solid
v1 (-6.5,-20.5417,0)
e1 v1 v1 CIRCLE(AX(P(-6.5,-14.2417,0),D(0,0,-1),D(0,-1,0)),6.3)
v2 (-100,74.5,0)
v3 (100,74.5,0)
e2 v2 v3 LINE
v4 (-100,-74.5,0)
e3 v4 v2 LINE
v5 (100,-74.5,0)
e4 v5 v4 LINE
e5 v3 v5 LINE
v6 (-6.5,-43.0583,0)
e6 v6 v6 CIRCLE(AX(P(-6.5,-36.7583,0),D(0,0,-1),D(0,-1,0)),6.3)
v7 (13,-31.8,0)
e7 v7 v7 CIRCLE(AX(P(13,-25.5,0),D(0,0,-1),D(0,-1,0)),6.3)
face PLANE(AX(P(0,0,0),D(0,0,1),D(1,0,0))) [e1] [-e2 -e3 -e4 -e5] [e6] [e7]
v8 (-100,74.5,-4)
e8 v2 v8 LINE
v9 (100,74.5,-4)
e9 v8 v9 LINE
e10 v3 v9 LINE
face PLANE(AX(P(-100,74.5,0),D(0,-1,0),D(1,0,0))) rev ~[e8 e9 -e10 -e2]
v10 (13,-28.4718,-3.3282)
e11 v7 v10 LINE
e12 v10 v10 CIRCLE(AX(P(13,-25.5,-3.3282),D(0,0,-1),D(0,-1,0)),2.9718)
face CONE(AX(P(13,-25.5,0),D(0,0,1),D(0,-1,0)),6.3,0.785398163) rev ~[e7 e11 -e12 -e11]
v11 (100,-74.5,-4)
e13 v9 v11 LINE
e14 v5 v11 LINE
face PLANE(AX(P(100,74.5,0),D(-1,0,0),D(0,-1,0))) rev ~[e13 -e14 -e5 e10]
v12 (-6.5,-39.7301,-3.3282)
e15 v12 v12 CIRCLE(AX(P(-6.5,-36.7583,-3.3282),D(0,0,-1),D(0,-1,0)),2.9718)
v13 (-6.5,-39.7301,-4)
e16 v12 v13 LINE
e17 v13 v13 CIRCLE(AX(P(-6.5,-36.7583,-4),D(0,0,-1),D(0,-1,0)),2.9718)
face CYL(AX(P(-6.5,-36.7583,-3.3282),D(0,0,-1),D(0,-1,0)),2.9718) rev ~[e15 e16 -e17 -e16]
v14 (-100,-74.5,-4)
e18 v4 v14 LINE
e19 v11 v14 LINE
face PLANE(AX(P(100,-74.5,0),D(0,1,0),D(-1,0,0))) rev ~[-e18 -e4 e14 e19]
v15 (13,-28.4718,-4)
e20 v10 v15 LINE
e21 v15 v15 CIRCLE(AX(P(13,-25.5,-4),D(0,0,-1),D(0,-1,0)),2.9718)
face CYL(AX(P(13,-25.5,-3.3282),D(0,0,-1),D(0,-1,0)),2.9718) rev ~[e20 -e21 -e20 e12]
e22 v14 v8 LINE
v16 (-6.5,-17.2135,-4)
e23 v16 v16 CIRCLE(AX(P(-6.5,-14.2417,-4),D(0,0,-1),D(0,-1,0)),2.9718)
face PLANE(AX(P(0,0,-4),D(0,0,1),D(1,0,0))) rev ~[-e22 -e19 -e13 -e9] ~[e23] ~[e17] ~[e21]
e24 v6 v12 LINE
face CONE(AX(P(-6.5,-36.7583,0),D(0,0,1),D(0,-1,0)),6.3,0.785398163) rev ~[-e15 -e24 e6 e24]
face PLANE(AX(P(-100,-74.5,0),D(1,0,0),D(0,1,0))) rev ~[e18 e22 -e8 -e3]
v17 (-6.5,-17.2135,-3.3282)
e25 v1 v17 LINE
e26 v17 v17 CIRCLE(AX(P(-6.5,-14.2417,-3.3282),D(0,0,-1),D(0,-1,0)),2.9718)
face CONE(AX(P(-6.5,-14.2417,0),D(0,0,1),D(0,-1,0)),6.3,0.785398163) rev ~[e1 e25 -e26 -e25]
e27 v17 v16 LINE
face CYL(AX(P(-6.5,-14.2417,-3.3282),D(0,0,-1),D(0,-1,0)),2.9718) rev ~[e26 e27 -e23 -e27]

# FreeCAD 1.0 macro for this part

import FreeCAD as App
import Part
import Sketcher


def add_polygon(sketch, points):
    """Adds a closed chain of lines whose ends are joined by coincident constraints."""
    first, n = sketch.GeometryCount, len(points)
    for a, b in zip(points, points[1:] + points[:1]):
        sketch.addGeometry(Part.LineSegment(App.Vector(*a, 0), App.Vector(*b, 0)), False)
    for i in range(n):
        sketch.addConstraint(Sketcher.Constraint("Coincident", first + i, 2, first + (i + 1) % n, 1))

doc = App.newDocument("Part")
body = doc.addObject("PartDesign::Body", "Body")

# Sketch on XY plane
sketch1 = doc.addObject("Sketcher::SketchObject", "Sketch")
body.addObject(sketch1)
sketch1.AttachmentSupport = (doc.XY_Plane, [""])
sketch1.MapMode = "FlatFace"
add_polygon(sketch1, [(100, 74.5), (-100, 74.5), (-100, -74.5), (100, -74.5)])  # lines 0-3
sketch1.addConstraint([
    Sketcher.Constraint("Horizontal", 0),
    Sketcher.Constraint("Vertical", 1),
    Sketcher.Constraint("Horizontal", 2),
    Sketcher.Constraint("Vertical", 3),
    Sketcher.Constraint("Symmetric", 0, 2, 2, 2, -1, 1),
    Sketcher.Constraint("DistanceX", 0, 2, 0, 1, 200.0),
    Sketcher.Constraint("DistanceY", 1, 2, 1, 1, 149.0),
])
pad1 = doc.addObject("PartDesign::Pad", "Pad")
body.addObject(pad1)
pad1.Profile = sketch1
pad1.Length = 4
pad1.Reversed = True

# Sketch on XY plane
sketch2 = doc.addObject("Sketcher::SketchObject", "Sketch001")
body.addObject(sketch2)
sketch2.AttachmentSupport = (doc.XY_Plane, [""])
sketch2.MapMode = "FlatFace"
sketch2.addGeometry([
    Part.Circle(App.Vector(13, -25.5, 0), App.Vector(0, 0, 1), 2.9718),
    Part.Circle(App.Vector(-6.5, -14.2417, 0), App.Vector(0, 0, 1), 2.9718),
    Part.Circle(App.Vector(-6.5, -36.7583, 0), App.Vector(0, 0, 1), 2.9718),
], False)
sketch2.addConstraint([
    Sketcher.Constraint("Equal", 0, 1),
    Sketcher.Constraint("Equal", 1, 2),
    Sketcher.Constraint("Vertical", 1, 3, 2, 3),
    Sketcher.Constraint("DistanceX", -1, 1, 0, 3, 13.0),
    Sketcher.Constraint("Diameter", 0, 5.9436),
    Sketcher.Constraint("DistanceY", 0, 3, -1, 1, 25.5),
    Sketcher.Constraint("DistanceX", 1, 3, -1, 1, 6.5),
    Sketcher.Constraint("DistanceY", 1, 3, -1, 1, 14.2417),
    Sketcher.Constraint("DistanceY", 2, 3, -1, 1, 36.7583),
])
doc.recompute()
hole = doc.addObject("PartDesign::Hole", "Hole")
body.addObject(hole)
hole.Profile = sketch2
hole.ThreadType = "None"
hole.Diameter = 5.9436
hole.DepthType = "Dimension"
hole.Depth = 10.65
hole.DrillPoint = "Angled"
hole.DrillPointAngle = 118
hole.HoleCutType = "Countersink"
hole.HoleCutDiameter = 12.6
hole.HoleCutCountersinkAngle = 90

doc.recompute()
